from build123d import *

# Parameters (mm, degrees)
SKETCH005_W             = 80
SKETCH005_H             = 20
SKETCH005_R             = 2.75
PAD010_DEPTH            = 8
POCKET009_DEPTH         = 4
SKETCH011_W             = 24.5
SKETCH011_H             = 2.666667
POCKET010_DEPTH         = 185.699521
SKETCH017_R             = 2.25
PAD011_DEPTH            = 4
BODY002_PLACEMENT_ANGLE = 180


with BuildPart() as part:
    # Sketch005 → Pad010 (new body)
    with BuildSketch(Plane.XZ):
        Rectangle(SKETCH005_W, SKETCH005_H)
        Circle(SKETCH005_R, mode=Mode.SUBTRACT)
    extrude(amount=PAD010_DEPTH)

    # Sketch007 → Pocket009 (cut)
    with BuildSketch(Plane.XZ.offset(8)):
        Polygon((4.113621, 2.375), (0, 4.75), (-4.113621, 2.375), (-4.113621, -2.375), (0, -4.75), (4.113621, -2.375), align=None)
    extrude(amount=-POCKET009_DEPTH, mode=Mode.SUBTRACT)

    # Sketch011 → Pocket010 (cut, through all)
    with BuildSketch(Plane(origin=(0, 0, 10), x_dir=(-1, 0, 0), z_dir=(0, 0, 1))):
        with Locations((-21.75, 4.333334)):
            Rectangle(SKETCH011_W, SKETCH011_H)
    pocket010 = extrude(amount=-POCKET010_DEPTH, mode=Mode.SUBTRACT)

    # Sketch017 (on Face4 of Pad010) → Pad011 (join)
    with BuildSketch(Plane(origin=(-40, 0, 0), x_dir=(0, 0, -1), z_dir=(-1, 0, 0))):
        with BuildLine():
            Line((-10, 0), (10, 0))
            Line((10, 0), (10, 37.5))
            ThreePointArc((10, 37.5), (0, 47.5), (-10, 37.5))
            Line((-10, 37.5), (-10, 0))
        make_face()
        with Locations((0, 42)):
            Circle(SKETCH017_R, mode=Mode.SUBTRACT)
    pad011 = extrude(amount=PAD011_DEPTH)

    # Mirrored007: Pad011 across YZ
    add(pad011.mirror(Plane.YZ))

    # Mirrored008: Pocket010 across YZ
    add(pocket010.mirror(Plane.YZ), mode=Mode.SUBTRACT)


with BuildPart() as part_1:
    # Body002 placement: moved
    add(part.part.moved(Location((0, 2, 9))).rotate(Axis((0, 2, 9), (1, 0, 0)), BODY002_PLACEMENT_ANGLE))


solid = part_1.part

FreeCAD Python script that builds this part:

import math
import FreeCAD as App
import Part
import Sketcher

V = App.Vector
Q = App.Units.Quantity


def add_polygon(sketch, points):
    """Adds a closed chain of lines whose ends are joined by coincident constraints."""
    first, n = sketch.GeometryCount, len(points)
    for a, b in zip(points, points[1:] + points[:1]):
        sketch.addGeometry(Part.LineSegment(App.Vector(*a, 0), App.Vector(*b, 0)), False)
    for i in range(n):
        sketch.addConstraint(Sketcher.Constraint("Coincident", first + i, 2, first + (i + 1) % n, 1))

doc = App.newDocument("Part")
body = doc.addObject("PartDesign::Body", "Body")

sketch1 = body.newObject("Sketcher::SketchObject", "Sketch")
sketch1.AttachmentSupport = (doc.getObject("XZ_Plane"), [""])
sketch1.MapMode = "FlatFace"
add_polygon(sketch1, [(-40, 10), (-40, -10), (40, -10), (40, 10)])
sketch1.addGeometry(Part.Circle(V(0, 0, 0), V(0, 0, 1), 2.75), False)
sketch1.addConstraint(Sketcher.Constraint("Vertical", 0))
sketch1.addConstraint(Sketcher.Constraint("Horizontal", 1))
sketch1.addConstraint(Sketcher.Constraint("Vertical", 2))
sketch1.addConstraint(Sketcher.Constraint("Horizontal", 3))
sketch1.addConstraint(Sketcher.Constraint("Coincident", 4, 3, -1, 1))
sketch1.addConstraint(Sketcher.Constraint("Symmetric", 0, 2, 2, 2, -1, 1))
sketch1.addConstraint(Sketcher.Constraint("Diameter", 4, Q("5.5 mm")))
sketch1.addConstraint(Sketcher.Constraint("DistanceX", 1, 1, 1, 2, Q("80 mm")))
sketch1.addConstraint(Sketcher.Constraint("DistanceY", 0, 2, 0, 1, Q("20 mm")))
pad1 = body.newObject("PartDesign::Pad", "Pad")
pad1.Profile = sketch1
pad1.Length = 8

sketch2 = body.newObject("Sketcher::SketchObject", "Sketch001")
sketch2.AttachmentSupport = (doc.getObject("XZ_Plane"), [""])
sketch2.MapMode = "FlatFace"
sketch2.AttachmentOffset = App.Placement(V(0, 0, 8), App.Rotation())
add_polygon(sketch2, [(4.113621, 2.375), (0, 4.75), (-4.113621, 2.375), (-4.113621, -2.375), (0, -4.75), (4.113621, -2.375)])
sketch2.addConstraint(Sketcher.Constraint("Vertical", 2))
sketch2.addConstraint(Sketcher.Constraint("Vertical", 5))
sketch2.addConstraint(Sketcher.Constraint("Symmetric", 0, 2, 3, 2, -1, 1))
sketch2.addConstraint(Sketcher.Constraint("Symmetric", 1, 2, 4, 2, -1, 1))
sketch2.addConstraint(Sketcher.Constraint("PointOnObject", 0, 2, -2))
sketch2.addConstraint(Sketcher.Constraint("Parallel", 0, 3))
sketch2.addConstraint(Sketcher.Constraint("Horizontal", 2, 2, 4, 2))
sketch2.addConstraint(Sketcher.Constraint("Angle", 0, Q("150.000002 deg")))
sketch2.addConstraint(Sketcher.Constraint("DistanceY", 2, 2, 2, 1, Q("4.75 mm")))
sketch2.addConstraint(Sketcher.Constraint("DistanceY", 3, 2, 0, 2, Q("9.5 mm")))
pocket1 = body.newObject("PartDesign::Pocket", "Pocket")
pocket1.Profile = sketch2
pocket1.Length = 4

sketch3 = body.newObject("Sketcher::SketchObject", "Sketch002")
sketch3.AttachmentSupport = (doc.getObject("XY_Plane"), [""])
sketch3.MapMode = "FlatFace"
sketch3.AttachmentOffset = App.Placement(V(0, 0, 10), App.Rotation())
add_polygon(sketch3, [(34, -5.666667), (34, -3.000001), (9.5, -3.000001), (9.5, -5.666667)])
sketch3.addConstraint(Sketcher.Constraint("Vertical", 0))
sketch3.addConstraint(Sketcher.Constraint("Horizontal", 1))
sketch3.addConstraint(Sketcher.Constraint("Vertical", 2))
sketch3.addConstraint(Sketcher.Constraint("Horizontal", 3))
sketch3.addConstraint(Sketcher.Constraint("DistanceX", 1, 2, 1, 1, Q("24.5 mm")))
sketch3.addConstraint(Sketcher.Constraint("DistanceX", -1, 1, 0, 2, Q("34 mm")))
sketch3.addConstraint(Sketcher.Constraint("DistanceY", 0, 2, -1, 1, Q("3.000001 mm")))
sketch3.addConstraint(Sketcher.Constraint("DistanceY", 0, 1, 0, 2, Q("2.666667 mm")))
pocket2 = body.newObject("PartDesign::Pocket", "Pocket001")
pocket2.Profile = sketch3
pocket2.Type = "ThroughAll"

sketch4 = body.newObject("Sketcher::SketchObject", "Sketch003")
sketch4.AttachmentSupport = (doc.getObject("YZ_Plane"), [""])
sketch4.MapMode = "FlatFace"
sketch4.AttachmentOffset = App.Placement(V(0, 0, -40), App.Rotation())
sketch4.addGeometry(Part.LineSegment(V(0, 10, 0), V(0, -10, 0)), False)
sketch4.addGeometry(Part.LineSegment(V(0, -10, 0), V(-37.5, -10, 0)), False)
sketch4.addGeometry(Part.ArcOfCircle(Part.Circle(V(-37.5, 0, 0), V(0, 0, 1), 10), math.radians(90), math.radians(270)), False)
sketch4.addGeometry(Part.LineSegment(V(-37.5, 10, 0), V(0, 10, 0)), False)
sketch4.addGeometry(Part.Circle(V(-42, 0, 0), V(0, 0, 1), 2.25), False)
sketch4.addConstraint(Sketcher.Constraint("Coincident", 0, 2, 1, 1))
sketch4.addConstraint(Sketcher.Constraint("Tangent", 1, 2, 2, 2))
sketch4.addConstraint(Sketcher.Constraint("Tangent", 2, 1, 3, 1))
sketch4.addConstraint(Sketcher.Constraint("Coincident", 3, 2, 0, 1))
sketch4.addConstraint(Sketcher.Constraint("Vertical", 0))
sketch4.addConstraint(Sketcher.Constraint("Horizontal", 1))
sketch4.addConstraint(Sketcher.Constraint("Horizontal", 3))
sketch4.addConstraint(Sketcher.Constraint("Symmetric", 0, 2, 3, 2, -1, 1))
sketch4.addConstraint(Sketcher.Constraint("PointOnObject", 4, 3, -1))
sketch4.addConstraint(Sketcher.Constraint("Radius", 2, Q("10 mm")))
sketch4.addConstraint(Sketcher.Constraint("Diameter", 4, Q("4.5 mm")))
sketch4.addConstraint(Sketcher.Constraint("DistanceX", 1, 2, 1, 1, Q("37.5 mm")))
sketch4.addConstraint(Sketcher.Constraint("DistanceX", 4, 3, -1, 1, Q("42 mm")))
pad2 = body.newObject("PartDesign::Pad", "Pad001")
pad2.Profile = sketch4
pad2.Length = 4
pad2.Reversed = True
doc.recompute()

mirrored = body.newObject("PartDesign::Mirrored", "Mirrored")
mirrored.Originals = [pad2]
mirrored.MirrorPlane = (doc.getObject("YZ_Plane"), [""])
body.Tip = mirrored
doc.recompute()

mirrored2 = body.newObject("PartDesign::Mirrored", "Mirrored001")
mirrored2.Originals = [pocket2]
mirrored2.MirrorPlane = (doc.getObject("YZ_Plane"), [""])
body.Tip = mirrored2
body2 = doc.addObject("PartDesign::Body", "Body001")
doc.recompute()

body.Placement = App.Placement(V(0, 2, 9), App.Rotation(V(1, 0, 0), 180))
boolean = body2.newObject("PartDesign::Boolean", "Boolean")
boolean.Type = "Fuse"
boolean.addObjects([body])

doc.recompute()
